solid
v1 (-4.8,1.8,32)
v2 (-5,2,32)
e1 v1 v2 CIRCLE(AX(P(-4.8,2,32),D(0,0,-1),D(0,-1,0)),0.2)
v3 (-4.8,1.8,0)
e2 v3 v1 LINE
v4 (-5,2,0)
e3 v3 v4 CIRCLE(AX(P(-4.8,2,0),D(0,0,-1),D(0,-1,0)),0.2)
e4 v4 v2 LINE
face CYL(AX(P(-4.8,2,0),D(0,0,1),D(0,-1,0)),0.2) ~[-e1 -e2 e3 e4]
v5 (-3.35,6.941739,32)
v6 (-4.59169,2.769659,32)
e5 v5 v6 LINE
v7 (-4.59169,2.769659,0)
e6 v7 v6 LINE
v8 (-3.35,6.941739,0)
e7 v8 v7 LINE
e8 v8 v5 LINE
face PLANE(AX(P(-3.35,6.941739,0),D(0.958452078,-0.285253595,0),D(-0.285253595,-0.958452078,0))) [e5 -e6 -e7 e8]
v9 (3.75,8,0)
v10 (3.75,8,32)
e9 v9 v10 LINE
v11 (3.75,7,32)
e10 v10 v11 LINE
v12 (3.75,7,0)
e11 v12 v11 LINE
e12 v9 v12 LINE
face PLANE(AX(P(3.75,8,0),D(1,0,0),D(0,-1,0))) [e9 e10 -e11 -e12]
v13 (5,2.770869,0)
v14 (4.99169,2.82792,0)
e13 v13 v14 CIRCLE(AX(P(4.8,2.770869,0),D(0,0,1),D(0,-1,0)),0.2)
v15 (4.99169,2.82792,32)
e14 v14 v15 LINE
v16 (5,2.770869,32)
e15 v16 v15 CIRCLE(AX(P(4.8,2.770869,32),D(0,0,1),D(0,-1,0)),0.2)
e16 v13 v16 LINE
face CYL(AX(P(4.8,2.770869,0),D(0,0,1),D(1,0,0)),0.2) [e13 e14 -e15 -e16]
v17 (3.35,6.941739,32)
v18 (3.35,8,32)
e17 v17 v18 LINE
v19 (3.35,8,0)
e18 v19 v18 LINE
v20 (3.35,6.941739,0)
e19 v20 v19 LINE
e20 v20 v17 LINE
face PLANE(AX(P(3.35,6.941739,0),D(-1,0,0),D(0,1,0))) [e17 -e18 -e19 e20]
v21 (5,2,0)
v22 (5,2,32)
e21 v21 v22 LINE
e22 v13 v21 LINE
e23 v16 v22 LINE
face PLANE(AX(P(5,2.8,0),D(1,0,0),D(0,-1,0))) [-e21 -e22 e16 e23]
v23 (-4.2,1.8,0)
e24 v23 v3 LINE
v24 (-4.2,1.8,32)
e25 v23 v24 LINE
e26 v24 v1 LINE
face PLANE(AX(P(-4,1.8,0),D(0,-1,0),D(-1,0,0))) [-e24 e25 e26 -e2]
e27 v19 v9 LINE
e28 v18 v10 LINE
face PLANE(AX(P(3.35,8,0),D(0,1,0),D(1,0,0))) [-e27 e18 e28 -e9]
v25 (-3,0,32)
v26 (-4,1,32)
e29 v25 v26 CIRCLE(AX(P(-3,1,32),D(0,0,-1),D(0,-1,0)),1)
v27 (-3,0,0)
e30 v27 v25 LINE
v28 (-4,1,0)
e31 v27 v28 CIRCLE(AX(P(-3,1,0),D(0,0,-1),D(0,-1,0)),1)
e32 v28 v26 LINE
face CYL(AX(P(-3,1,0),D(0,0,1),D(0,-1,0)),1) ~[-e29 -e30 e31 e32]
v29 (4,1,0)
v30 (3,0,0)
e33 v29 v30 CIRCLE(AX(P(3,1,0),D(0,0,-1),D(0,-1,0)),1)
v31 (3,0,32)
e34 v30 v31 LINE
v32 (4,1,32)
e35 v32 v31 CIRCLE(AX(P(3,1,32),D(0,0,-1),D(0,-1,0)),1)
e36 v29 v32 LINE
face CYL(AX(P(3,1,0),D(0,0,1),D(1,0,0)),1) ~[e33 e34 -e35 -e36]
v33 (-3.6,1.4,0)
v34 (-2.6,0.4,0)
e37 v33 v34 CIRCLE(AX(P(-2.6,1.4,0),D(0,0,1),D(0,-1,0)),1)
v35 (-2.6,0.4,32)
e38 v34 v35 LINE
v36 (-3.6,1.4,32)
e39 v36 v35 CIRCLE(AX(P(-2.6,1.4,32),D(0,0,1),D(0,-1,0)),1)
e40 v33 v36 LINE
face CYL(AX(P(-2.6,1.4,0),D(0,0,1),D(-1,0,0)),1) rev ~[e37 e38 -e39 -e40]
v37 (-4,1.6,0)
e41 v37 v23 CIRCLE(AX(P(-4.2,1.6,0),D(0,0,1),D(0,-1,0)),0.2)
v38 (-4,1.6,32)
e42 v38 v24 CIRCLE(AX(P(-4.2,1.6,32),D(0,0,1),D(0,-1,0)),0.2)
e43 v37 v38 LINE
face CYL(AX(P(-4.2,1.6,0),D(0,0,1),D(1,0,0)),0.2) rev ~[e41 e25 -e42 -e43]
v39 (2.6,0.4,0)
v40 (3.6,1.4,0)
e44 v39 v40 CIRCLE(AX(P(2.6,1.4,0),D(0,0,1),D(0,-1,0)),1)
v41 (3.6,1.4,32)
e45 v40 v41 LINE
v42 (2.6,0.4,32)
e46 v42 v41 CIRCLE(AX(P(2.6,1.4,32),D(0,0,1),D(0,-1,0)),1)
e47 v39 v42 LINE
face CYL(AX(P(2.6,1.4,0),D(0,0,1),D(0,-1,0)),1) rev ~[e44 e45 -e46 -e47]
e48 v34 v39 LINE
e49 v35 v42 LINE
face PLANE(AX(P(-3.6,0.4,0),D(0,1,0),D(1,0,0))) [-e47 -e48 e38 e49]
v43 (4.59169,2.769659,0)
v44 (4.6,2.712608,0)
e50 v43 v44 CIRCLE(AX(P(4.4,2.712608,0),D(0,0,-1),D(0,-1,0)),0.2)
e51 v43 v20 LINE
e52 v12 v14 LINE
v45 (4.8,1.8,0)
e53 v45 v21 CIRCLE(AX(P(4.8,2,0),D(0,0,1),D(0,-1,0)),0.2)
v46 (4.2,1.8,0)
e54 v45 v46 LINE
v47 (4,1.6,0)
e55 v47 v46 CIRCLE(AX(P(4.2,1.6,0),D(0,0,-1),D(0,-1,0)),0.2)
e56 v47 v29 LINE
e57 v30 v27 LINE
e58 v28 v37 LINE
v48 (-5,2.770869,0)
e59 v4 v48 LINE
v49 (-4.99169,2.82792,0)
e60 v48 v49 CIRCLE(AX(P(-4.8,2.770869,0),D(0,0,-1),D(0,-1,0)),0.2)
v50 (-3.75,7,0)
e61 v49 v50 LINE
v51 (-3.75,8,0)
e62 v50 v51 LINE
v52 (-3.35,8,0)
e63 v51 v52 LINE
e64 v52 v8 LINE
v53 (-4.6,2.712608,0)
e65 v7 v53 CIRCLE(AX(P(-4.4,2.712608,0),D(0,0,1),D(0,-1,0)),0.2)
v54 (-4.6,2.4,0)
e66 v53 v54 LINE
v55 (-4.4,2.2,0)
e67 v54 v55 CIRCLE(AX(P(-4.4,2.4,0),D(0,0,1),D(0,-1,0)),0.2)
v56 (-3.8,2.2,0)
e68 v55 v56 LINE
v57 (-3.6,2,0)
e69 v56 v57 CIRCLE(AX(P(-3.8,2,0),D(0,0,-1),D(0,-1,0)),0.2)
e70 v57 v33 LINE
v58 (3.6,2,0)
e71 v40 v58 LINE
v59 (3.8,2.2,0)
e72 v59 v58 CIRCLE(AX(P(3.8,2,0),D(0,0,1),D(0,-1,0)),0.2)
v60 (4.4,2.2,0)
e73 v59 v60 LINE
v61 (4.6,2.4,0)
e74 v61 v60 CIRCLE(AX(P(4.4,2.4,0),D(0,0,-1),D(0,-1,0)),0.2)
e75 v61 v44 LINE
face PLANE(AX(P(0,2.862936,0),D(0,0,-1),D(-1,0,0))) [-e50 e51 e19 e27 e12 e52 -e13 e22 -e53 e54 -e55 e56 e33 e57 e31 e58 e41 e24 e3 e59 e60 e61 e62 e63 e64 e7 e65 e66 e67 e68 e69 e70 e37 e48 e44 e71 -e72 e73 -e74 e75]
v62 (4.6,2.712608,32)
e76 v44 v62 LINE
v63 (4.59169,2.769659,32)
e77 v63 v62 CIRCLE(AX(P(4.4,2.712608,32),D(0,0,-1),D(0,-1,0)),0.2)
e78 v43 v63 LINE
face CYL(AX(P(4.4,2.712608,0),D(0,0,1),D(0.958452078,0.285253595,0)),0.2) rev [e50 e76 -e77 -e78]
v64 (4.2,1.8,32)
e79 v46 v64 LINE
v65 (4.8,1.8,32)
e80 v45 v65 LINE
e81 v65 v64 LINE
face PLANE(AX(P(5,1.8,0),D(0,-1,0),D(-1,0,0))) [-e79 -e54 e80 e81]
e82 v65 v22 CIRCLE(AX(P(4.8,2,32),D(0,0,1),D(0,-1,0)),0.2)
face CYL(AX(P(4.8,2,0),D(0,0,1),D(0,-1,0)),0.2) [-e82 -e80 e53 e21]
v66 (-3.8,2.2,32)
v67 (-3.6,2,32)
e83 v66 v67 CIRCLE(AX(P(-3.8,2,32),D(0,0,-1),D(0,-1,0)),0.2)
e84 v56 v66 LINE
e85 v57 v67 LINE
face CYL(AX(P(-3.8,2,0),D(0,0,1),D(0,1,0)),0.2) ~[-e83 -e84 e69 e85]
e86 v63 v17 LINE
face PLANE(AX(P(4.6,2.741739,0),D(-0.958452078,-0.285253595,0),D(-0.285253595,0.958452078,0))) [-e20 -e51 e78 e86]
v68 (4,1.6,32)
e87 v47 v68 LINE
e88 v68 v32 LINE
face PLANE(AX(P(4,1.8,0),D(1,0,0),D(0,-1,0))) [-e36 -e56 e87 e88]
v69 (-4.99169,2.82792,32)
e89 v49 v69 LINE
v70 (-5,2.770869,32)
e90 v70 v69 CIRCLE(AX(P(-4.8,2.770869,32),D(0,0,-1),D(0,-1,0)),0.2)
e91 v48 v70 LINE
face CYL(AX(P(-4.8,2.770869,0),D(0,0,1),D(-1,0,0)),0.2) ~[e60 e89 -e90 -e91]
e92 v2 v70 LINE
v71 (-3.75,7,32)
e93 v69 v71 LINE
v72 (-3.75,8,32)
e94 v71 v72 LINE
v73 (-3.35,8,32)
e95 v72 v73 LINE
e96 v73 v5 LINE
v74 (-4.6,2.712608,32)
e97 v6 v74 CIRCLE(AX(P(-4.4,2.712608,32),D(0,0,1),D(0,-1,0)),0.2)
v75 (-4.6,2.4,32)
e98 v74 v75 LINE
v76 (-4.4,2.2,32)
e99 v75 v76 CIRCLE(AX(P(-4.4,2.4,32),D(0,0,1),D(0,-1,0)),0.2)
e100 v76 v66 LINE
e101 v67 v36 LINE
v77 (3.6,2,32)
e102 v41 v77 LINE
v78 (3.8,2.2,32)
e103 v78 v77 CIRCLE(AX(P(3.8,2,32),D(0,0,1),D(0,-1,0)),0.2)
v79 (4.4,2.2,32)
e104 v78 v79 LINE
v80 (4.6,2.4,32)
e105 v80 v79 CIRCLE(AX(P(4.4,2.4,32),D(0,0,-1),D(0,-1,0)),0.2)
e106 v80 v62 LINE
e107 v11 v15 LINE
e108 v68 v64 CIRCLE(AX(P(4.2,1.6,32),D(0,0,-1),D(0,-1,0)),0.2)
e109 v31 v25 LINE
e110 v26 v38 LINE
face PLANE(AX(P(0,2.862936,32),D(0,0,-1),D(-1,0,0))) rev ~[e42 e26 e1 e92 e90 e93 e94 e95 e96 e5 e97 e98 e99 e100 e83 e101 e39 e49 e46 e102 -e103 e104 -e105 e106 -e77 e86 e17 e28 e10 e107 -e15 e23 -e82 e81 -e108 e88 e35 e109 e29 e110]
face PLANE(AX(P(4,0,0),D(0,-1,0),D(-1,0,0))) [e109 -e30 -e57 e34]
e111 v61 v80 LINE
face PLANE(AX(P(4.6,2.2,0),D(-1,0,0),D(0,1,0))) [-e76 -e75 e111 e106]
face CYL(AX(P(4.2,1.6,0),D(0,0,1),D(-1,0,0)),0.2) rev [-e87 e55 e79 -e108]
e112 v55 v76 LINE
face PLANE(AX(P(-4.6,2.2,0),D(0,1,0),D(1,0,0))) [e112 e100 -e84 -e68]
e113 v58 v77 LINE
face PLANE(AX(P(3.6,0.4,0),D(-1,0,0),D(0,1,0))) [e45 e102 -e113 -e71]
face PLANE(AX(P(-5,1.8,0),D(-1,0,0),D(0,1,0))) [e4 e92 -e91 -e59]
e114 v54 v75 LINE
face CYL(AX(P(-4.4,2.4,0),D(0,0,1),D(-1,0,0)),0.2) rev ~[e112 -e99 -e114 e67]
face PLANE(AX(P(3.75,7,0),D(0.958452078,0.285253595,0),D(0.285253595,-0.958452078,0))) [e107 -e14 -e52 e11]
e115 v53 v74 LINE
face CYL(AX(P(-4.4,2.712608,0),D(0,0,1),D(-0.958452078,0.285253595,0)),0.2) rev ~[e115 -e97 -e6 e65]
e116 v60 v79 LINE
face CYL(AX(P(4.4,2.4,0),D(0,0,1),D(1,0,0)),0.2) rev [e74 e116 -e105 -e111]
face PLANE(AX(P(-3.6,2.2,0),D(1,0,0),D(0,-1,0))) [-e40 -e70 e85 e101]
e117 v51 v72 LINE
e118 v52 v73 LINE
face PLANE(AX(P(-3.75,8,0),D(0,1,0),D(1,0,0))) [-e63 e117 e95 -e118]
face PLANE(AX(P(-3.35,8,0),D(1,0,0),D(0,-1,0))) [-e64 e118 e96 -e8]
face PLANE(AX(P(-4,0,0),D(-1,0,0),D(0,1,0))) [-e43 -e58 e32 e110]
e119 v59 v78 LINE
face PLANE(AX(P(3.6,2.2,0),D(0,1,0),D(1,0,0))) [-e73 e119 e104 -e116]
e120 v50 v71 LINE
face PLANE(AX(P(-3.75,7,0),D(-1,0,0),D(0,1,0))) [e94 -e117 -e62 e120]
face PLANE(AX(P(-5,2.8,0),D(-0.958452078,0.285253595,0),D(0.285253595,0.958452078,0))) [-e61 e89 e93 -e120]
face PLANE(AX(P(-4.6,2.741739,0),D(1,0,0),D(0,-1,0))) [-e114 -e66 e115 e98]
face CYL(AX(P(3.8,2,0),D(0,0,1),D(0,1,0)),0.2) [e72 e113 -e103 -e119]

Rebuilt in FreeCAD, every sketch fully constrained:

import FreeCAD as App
import Part
import Sketcher

V = App.Vector


def edges_at(feature, points):
    """Names of the edges that pass closest to the given points."""
    edges = feature.Shape.Edges
    near = lambda p: min(range(len(edges)), key=lambda i: edges[i].distToShape(Part.Vertex(*p))[0])
    return sorted({f"Edge{near(p) + 1}" for p in points})

doc = App.newDocument("Part")
params = doc.addObject("Spreadsheet::Sheet", "Params")
for row, (alias, value) in enumerate([
    ("sketch1_width", "1 mm"),
    ("sketch1_width2", "8 mm"),
    ("sketch1_width3", "0.4 mm"),
    ("sketch1_height", "1.8 mm"),
    ("pad1_length", "32 mm"),
    ("fillet_radius", "1 mm"),
    ("fillet2_radius", "0.2 mm"),
], start=1):
    params.set(f"A{row}", alias)
    params.set(f"B{row}", "=" + value)
    params.setAlias(f"B{row}", alias)

body = doc.addObject("PartDesign::Body", "Body")

# Sketch on XY plane
sketch1 = doc.addObject("Sketcher::SketchObject", "Sketch")
body.addObject(sketch1)
sketch1.AttachmentSupport = (doc.XY_Plane, [""])
sketch1.MapMode = "FlatFace"
sketch1.addGeometry([
    Part.LineSegment(V(3.75, 7, 0), V(3.75, 8, 0)),  # 0
    Part.LineSegment(V(3.75, 8, 0), V(3.35, 8, 0)),  # 1
    Part.LineSegment(V(3.35, 8, 0), V(3.35, 6.941739, 0)),  # 2
    Part.LineSegment(V(3.35, 6.941739, 0), V(4.6, 2.741739, 0)),  # 3
    Part.LineSegment(V(4.6, 2.741739, 0), V(4.6, 2.2, 0)),  # 4
    Part.LineSegment(V(4.6, 2.2, 0), V(3.6, 2.2, 0)),  # 5
    Part.LineSegment(V(3.6, 2.2, 0), V(3.6, 0.4, 0)),  # 6
    Part.LineSegment(V(3.6, 0.4, 0), V(-3.6, 0.4, 0)),  # 7
    Part.LineSegment(V(-3.6, 0.4, 0), V(-3.6, 2.2, 0)),  # 8
    Part.LineSegment(V(-3.6, 2.2, 0), V(-4.6, 2.2, 0)),  # 9
    Part.LineSegment(V(-4.6, 2.2, 0), V(-4.6, 2.741739, 0)),  # 10
    Part.LineSegment(V(-4.6, 2.741739, 0), V(-3.35, 6.941739, 0)),  # 11
    Part.LineSegment(V(-3.35, 6.941739, 0), V(-3.35, 8, 0)),  # 12
    Part.LineSegment(V(-3.35, 8, 0), V(-3.75, 8, 0)),  # 13
    Part.LineSegment(V(-3.75, 8, 0), V(-3.75, 7, 0)),  # 14
    Part.LineSegment(V(-3.75, 7, 0), V(-5, 2.8, 0)),  # 15
    Part.LineSegment(V(-5, 2.8, 0), V(-5, 1.8, 0)),  # 16
    Part.LineSegment(V(-5, 1.8, 0), V(-4, 1.8, 0)),  # 17
    Part.LineSegment(V(-4, 1.8, 0), V(-4, 0, 0)),  # 18
    Part.LineSegment(V(-4, 0, 0), V(4, 0, 0)),  # 19
    Part.LineSegment(V(4, 0, 0), V(4, 1.8, 0)),  # 20
    Part.LineSegment(V(4, 1.8, 0), V(5, 1.8, 0)),  # 21
    Part.LineSegment(V(5, 1.8, 0), V(5, 2.8, 0)),  # 22
    Part.LineSegment(V(5, 2.8, 0), V(3.75, 7, 0)),  # 23
], False)
sketch1.addConstraint([
    Sketcher.Constraint("Coincident", 0, 2, 1, 1),
    Sketcher.Constraint("Coincident", 1, 2, 2, 1),
    Sketcher.Constraint("Coincident", 2, 2, 3, 1),
    Sketcher.Constraint("Coincident", 3, 2, 4, 1),
    Sketcher.Constraint("Coincident", 4, 2, 5, 1),
    Sketcher.Constraint("Coincident", 5, 2, 6, 1),
    Sketcher.Constraint("Coincident", 6, 2, 7, 1),
    Sketcher.Constraint("Coincident", 7, 2, 8, 1),
    Sketcher.Constraint("Coincident", 8, 2, 9, 1),
    Sketcher.Constraint("Coincident", 9, 2, 10, 1),
    Sketcher.Constraint("Coincident", 10, 2, 11, 1),
    Sketcher.Constraint("Coincident", 11, 2, 12, 1),
    Sketcher.Constraint("Coincident", 12, 2, 13, 1),
    Sketcher.Constraint("Coincident", 13, 2, 14, 1),
    Sketcher.Constraint("Coincident", 14, 2, 15, 1),
    Sketcher.Constraint("Coincident", 15, 2, 16, 1),
    Sketcher.Constraint("Coincident", 16, 2, 17, 1),
    Sketcher.Constraint("Coincident", 17, 2, 18, 1),
    Sketcher.Constraint("Coincident", 18, 2, 19, 1),
    Sketcher.Constraint("Coincident", 19, 2, 20, 1),
    Sketcher.Constraint("Coincident", 20, 2, 21, 1),
    Sketcher.Constraint("Coincident", 21, 2, 22, 1),
    Sketcher.Constraint("Coincident", 22, 2, 23, 1),
    Sketcher.Constraint("Coincident", 23, 2, 0, 1),
    Sketcher.Constraint("Vertical", 0),
    Sketcher.Constraint("Horizontal", 1),
    Sketcher.Constraint("Vertical", 2),
    Sketcher.Constraint("Vertical", 4),
    Sketcher.Constraint("Horizontal", 5),
    Sketcher.Constraint("Vertical", 6),
    Sketcher.Constraint("Horizontal", 7),
    Sketcher.Constraint("Vertical", 8),
    Sketcher.Constraint("Horizontal", 9),
    Sketcher.Constraint("Vertical", 10),
    Sketcher.Constraint("Vertical", 12),
    Sketcher.Constraint("Horizontal", 13),
    Sketcher.Constraint("Vertical", 14),
    Sketcher.Constraint("Vertical", 16),
    Sketcher.Constraint("Horizontal", 17),
    Sketcher.Constraint("Vertical", 18),
    Sketcher.Constraint("Horizontal", 19),
    Sketcher.Constraint("Vertical", 20),
    Sketcher.Constraint("Horizontal", 21),
    Sketcher.Constraint("Vertical", 22),
    Sketcher.Constraint("Symmetric", 18, 2, 19, 2, -1, 1),
    Sketcher.Constraint("Symmetric", 5, 2, 8, 2, -2),
    Sketcher.Constraint("Symmetric", 3, 2, 10, 2, -2),
    Sketcher.Constraint("Symmetric", 2, 2, 11, 2, -2),
    Sketcher.Constraint("Symmetric", 0, 2, 13, 2, -2),
    Sketcher.Constraint("Symmetric", 16, 2, 21, 2, -2),
    Sketcher.Constraint("Parallel", 11, 15),
    Sketcher.Constraint("Parallel", 3, 23),
    Sketcher.Constraint("Horizontal", 15, 2, 22, 2),
    Sketcher.Constraint("Equal", 9, 17),
    Sketcher.Constraint("Equal", 21, 0),
    Sketcher.Constraint("Equal", 14, 16),
    Sketcher.Constraint("Equal", 8, 18),
    Sketcher.Constraint("Equal", 11, 15),
    Sketcher.Constraint("DistanceX", 5, 2, 5, 1, 1.0),
    Sketcher.Constraint("DistanceX", 19, 1, 19, 2, 8.0),
    Sketcher.Constraint("DistanceX", 1, 2, 1, 1, 0.4),
    Sketcher.Constraint("DistanceY", 6, 2, 6, 1, 1.8),
    Sketcher.Constraint("DistanceY", -1, 1, 0, 2, 8.0),
    Sketcher.Constraint("DistanceY", -1, 1, 4, 2, 2.2),
    Sketcher.Constraint("DistanceX", 11, 2, 2, 2, 6.7),
    Sketcher.Constraint("DistanceY", 2, 2, 2, 1, 1.058261),
])
sketch1.setExpression("Constraints[58]", "Params.sketch1_width")
sketch1.setExpression("Constraints[59]", "Params.sketch1_width2")
sketch1.setExpression("Constraints[60]", "Params.sketch1_width3")
sketch1.setExpression("Constraints[61]", "Params.sketch1_height")
pad1 = doc.addObject("PartDesign::Pad", "Pad")
body.addObject(pad1)
pad1.Profile = sketch1
pad1.setExpression("Length", "Params.pad1_length")
doc.recompute()

fillet = doc.addObject("PartDesign::Fillet", "Fillet")
body.addObject(fillet)
fillet.Base = (pad1, edges_at(pad1, [
    (4, 0, 16),
    (-4, 0, 16),
    (-3.6, 0.4, 16),
    (3.6, 0.4, 16),
]))
fillet.setExpression("Radius", "Params.fillet_radius")
doc.recompute()

fillet2 = doc.addObject("PartDesign::Fillet", "Fillet001")
body.addObject(fillet2)
fillet2.Base = (fillet, edges_at(fillet, [
    (5, 2.8, 16),
    (5, 1.8, 16),
    (4, 1.8, 16),
    (-4, 1.8, 16),
    (-5, 1.8, 16),
    (-5, 2.8, 16),
    (-4.6, 2.742, 16),
    (-4.6, 2.2, 16),
    (-3.6, 2.2, 16),
    (3.6, 2.2, 16),
    (4.6, 2.2, 16),
    (4.6, 2.742, 16),
]))
fillet2.setExpression("Radius", "Params.fillet2_radius")

doc.recompute()
